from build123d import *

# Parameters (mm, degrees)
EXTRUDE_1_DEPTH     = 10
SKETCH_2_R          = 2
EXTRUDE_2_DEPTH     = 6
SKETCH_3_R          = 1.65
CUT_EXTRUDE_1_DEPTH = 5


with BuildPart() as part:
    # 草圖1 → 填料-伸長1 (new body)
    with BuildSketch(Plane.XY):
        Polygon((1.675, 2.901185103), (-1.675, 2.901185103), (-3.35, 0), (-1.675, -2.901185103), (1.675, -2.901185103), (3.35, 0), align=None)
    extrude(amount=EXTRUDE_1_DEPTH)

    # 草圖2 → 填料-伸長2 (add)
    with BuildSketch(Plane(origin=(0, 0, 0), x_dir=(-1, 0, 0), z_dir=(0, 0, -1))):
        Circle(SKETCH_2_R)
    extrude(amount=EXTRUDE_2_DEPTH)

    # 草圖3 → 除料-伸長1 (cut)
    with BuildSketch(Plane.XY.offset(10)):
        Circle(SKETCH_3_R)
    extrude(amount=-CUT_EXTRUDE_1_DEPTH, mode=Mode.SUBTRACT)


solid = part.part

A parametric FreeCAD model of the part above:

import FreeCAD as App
import Part
import Sketcher
from FreeCAD import Vector
Q = App.Units.Quantity


def add_polygon(sketch, points):
    """Adds a closed chain of lines whose ends are joined by coincident constraints."""
    first, n = sketch.GeometryCount, len(points)
    for a, b in zip(points, points[1:] + points[:1]):
        sketch.addGeometry(Part.LineSegment(App.Vector(*a, 0), App.Vector(*b, 0)), False)
    for i in range(n):
        sketch.addConstraint(Sketcher.Constraint("Coincident", first + i, 2, first + (i + 1) % n, 1))

doc = App.newDocument("Part")
body = doc.addObject("PartDesign::Body", "Body")

# Sketch on XY plane
sketch1 = body.newObject("Sketcher::SketchObject", "Sketch")
sketch1.AttachmentSupport = (doc.getObject("XY_Plane"), [""])
sketch1.MapMode = "FlatFace"
add_polygon(sketch1, [(1.7, 2.9), (-1.7, 2.9), (-3.4, 0), (-1.7, -2.9), (1.7, -2.9), (3.4, 0)])  # lines 0-5
sketch1.addConstraint([
    Sketcher.Constraint("Horizontal", 0),
    Sketcher.Constraint("Horizontal", 3),
    Sketcher.Constraint("Symmetric", 0, 2, 3, 2, -1, 1),
    Sketcher.Constraint("Symmetric", 1, 2, 4, 2, -1, 1),
    Sketcher.Constraint("PointOnObject", 1, 2, -1),
    Sketcher.Constraint("Parallel", 2, 5),
    Sketcher.Constraint("Vertical", 0, 2, 2, 2),
    Sketcher.Constraint("Angle", 1, Q("-120 deg")),
    Sketcher.Constraint("DistanceX", 0, 2, 0, 1, Q("3.35 mm")),
    Sketcher.Constraint("DistanceX", 1, 2, 4, 2, Q("6.7 mm")),
])
pad1 = body.newObject("PartDesign::Pad", "Pad")
pad1.Profile = sketch1
pad1.Length = 10

# Sketch on XY plane
sketch2 = body.newObject("Sketcher::SketchObject", "Sketch001")
sketch2.AttachmentSupport = (doc.getObject("XY_Plane"), [""])
sketch2.MapMode = "FlatFace"
sketch2.addGeometry(Part.Circle(Vector(0, 0, 0), Vector(0, 0, 1), 2), False)
sketch2.addConstraint([
    Sketcher.Constraint("Coincident", 0, 3, -1, 1),
    Sketcher.Constraint("Diameter", 0, Q("4 mm")),
])
pad2 = body.newObject("PartDesign::Pad", "Pad001")
pad2.Profile = sketch2
pad2.Length = 6
pad2.Reversed = True

# Sketch on XY plane
sketch3 = body.newObject("Sketcher::SketchObject", "Sketch002")
sketch3.AttachmentSupport = (doc.getObject("XY_Plane"), [""])
sketch3.MapMode = "FlatFace"
sketch3.AttachmentOffset = App.Placement(Vector(0, 0, 10), App.Rotation())
sketch3.addGeometry(Part.Circle(Vector(0, 0, 0), Vector(0, 0, 1), 1.6), False)
sketch3.addConstraint([
    Sketcher.Constraint("Coincident", 0, 3, -1, 1),
    Sketcher.Constraint("Diameter", 0, Q("3.3 mm")),
])
pocket1 = body.newObject("PartDesign::Pocket", "Pocket")
pocket1.Profile = sketch3
pocket1.Length = 5

doc.recompute()
